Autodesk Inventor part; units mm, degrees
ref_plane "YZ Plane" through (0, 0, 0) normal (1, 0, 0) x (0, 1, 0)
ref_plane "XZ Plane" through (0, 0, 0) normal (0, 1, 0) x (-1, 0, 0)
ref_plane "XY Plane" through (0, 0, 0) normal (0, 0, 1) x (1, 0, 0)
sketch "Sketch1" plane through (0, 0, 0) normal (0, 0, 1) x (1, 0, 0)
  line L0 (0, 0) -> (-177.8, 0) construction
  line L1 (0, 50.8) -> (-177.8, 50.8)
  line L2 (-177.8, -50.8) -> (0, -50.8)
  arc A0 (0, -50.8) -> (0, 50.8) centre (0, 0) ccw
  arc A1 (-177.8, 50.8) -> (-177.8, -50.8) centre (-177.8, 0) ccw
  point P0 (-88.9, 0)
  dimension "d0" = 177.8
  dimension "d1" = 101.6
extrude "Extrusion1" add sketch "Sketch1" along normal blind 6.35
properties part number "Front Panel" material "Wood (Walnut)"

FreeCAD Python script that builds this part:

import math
import FreeCAD as App
import Part
import Sketcher
Q = App.Units.Quantity

doc = App.newDocument("Part")
body = doc.addObject("PartDesign::Body", "Body")

# Sketch on XY plane
sketch1 = doc.addObject("Sketcher::SketchObject", "Sketch")
body.addObject(sketch1)
sketch1.AttachmentSupport = (doc.XY_Plane, [""])
sketch1.MapMode = "FlatFace"
sketch1.addGeometry([
    Part.ArcOfCircle(Part.Circle(App.Vector(0, 0, 0), App.Vector(0, 0, 1), 51), math.radians(-90), math.radians(90)),
    Part.LineSegment(App.Vector(0, 51, 0), App.Vector(-178, 51, 0)),
    Part.ArcOfCircle(Part.Circle(App.Vector(-178, 0, 0), App.Vector(0, 0, 1), 51), math.radians(90), math.radians(270)),
    Part.LineSegment(App.Vector(-178, -51, 0), App.Vector(0, -51, 0)),
], False)
sketch1.addConstraint([
    Sketcher.Constraint("Tangent", 0, 2, 1, 1),
    Sketcher.Constraint("Tangent", 1, 2, 2, 1),
    Sketcher.Constraint("Tangent", 2, 2, 3, 1),
    Sketcher.Constraint("Tangent", 3, 2, 0, 1),
    Sketcher.Constraint("Horizontal", 1),
    Sketcher.Constraint("Horizontal", 3),
    Sketcher.Constraint("Coincident", 0, 3, -1, 1),
    Sketcher.Constraint("Radius", 0, Q("2 in")),
    Sketcher.Constraint("DistanceX", 1, 2, 1, 1, Q("7 in")),
])
pad1 = doc.addObject("PartDesign::Pad", "Pad")
body.addObject(pad1)
pad1.Profile = sketch1
pad1.Length = Q("0.25 in")

doc.recompute()
